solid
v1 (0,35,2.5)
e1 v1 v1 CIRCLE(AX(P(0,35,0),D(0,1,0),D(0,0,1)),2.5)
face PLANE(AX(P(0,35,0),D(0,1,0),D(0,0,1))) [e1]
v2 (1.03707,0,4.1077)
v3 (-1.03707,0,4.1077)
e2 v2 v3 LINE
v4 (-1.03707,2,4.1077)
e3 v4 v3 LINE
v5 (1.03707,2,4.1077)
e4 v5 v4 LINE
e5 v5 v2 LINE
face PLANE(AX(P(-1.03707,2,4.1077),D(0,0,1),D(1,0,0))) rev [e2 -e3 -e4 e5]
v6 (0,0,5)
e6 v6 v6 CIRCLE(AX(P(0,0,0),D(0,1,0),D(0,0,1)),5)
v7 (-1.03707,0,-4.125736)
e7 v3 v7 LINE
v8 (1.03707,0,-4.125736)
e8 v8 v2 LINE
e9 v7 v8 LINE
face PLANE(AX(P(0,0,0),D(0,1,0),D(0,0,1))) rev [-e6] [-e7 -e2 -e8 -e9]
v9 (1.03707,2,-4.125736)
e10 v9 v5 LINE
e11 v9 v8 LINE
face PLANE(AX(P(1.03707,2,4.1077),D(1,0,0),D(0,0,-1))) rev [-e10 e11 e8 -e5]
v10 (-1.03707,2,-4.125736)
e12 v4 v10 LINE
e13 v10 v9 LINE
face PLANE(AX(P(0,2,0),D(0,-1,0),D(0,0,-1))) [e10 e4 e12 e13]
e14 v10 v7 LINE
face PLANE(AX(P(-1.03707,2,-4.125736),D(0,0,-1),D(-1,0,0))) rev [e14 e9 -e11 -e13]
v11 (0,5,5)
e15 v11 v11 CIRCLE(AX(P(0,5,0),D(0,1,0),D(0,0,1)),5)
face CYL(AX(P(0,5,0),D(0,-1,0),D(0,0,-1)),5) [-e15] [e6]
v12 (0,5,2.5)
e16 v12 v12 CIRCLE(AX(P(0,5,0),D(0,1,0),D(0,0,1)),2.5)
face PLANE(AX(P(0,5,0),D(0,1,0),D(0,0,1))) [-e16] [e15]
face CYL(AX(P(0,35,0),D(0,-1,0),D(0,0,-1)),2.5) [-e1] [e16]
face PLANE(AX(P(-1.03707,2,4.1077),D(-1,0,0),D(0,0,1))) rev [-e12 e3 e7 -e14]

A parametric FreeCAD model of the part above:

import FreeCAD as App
import Part
import Sketcher
from FreeCAD import Vector
Q = App.Units.Quantity


def add_polygon(sketch, points):
    """Adds a closed chain of lines whose ends are joined by coincident constraints."""
    first, n = sketch.GeometryCount, len(points)
    for a, b in zip(points, points[1:] + points[:1]):
        sketch.addGeometry(Part.LineSegment(App.Vector(*a, 0), App.Vector(*b, 0)), False)
    for i in range(n):
        sketch.addConstraint(Sketcher.Constraint("Coincident", first + i, 2, first + (i + 1) % n, 1))

doc = App.newDocument("Part")
body = doc.addObject("PartDesign::Body", "Body")

# Sketch on XZ plane
sketch1 = body.newObject("Sketcher::SketchObject", "Sketch")
sketch1.AttachmentSupport = (doc.getObject("XZ_Plane"), [""])
sketch1.MapMode = "FlatFace"
sketch1.addGeometry(Part.Circle(Vector(0, 0, 0), Vector(0, 0, 1), 5), False)
sketch1.addConstraint(Sketcher.Constraint("Coincident", 0, 3, -1, 1))
sketch1.addConstraint(Sketcher.Constraint("Diameter", 0, Q("10 mm")))
pad1 = body.newObject("PartDesign::Pad", "Pad")
pad1.Profile = sketch1
pad1.Length = 5
pad1.Reversed = True

# Sketch on XZ plane
sketch2 = body.newObject("Sketcher::SketchObject", "Sketch001")
sketch2.AttachmentSupport = (doc.getObject("XZ_Plane"), [""])
sketch2.MapMode = "FlatFace"
sketch2.AttachmentOffset = App.Placement(Vector(0, 0, -5), App.Rotation())
sketch2.addGeometry(Part.Circle(Vector(0, 0, 0), Vector(0, 0, 1), 2.5), False)
sketch2.addConstraint(Sketcher.Constraint("Coincident", 0, 3, -1, 1))
sketch2.addConstraint(Sketcher.Constraint("Diameter", 0, Q("5 mm")))
pad2 = body.newObject("PartDesign::Pad", "Pad001")
pad2.Profile = sketch2
pad2.Length = 30
pad2.Reversed = True

# Sketch on XZ plane
sketch3 = body.newObject("Sketcher::SketchObject", "Sketch002")
sketch3.AttachmentSupport = (doc.getObject("XZ_Plane"), [""])
sketch3.MapMode = "FlatFace"
add_polygon(sketch3, [(-1, 4.1), (-1, -4.1), (1, -4.1), (1, 4.1)])  # lines 0-3
sketch3.addConstraint(Sketcher.Constraint("Vertical", 0))
sketch3.addConstraint(Sketcher.Constraint("Horizontal", 1))
sketch3.addConstraint(Sketcher.Constraint("Vertical", 2))
sketch3.addConstraint(Sketcher.Constraint("Horizontal", 3))
sketch3.addConstraint(Sketcher.Constraint("DistanceX", 1, 1, 1, 2, Q("2.07414 mm")))
sketch3.addConstraint(Sketcher.Constraint("DistanceY", -1, 1, 2, 2, Q("4.1077 mm")))
sketch3.addConstraint(Sketcher.Constraint("DistanceY", 0, 2, 0, 1, Q("8.233435 mm")))
sketch3.addConstraint(Sketcher.Constraint("DistanceX", 0, 2, -1, 1, Q("1.03707 mm")))
pocket1 = body.newObject("PartDesign::Pocket", "Pocket")
pocket1.Profile = sketch3
pocket1.Length = 2

doc.recompute()
